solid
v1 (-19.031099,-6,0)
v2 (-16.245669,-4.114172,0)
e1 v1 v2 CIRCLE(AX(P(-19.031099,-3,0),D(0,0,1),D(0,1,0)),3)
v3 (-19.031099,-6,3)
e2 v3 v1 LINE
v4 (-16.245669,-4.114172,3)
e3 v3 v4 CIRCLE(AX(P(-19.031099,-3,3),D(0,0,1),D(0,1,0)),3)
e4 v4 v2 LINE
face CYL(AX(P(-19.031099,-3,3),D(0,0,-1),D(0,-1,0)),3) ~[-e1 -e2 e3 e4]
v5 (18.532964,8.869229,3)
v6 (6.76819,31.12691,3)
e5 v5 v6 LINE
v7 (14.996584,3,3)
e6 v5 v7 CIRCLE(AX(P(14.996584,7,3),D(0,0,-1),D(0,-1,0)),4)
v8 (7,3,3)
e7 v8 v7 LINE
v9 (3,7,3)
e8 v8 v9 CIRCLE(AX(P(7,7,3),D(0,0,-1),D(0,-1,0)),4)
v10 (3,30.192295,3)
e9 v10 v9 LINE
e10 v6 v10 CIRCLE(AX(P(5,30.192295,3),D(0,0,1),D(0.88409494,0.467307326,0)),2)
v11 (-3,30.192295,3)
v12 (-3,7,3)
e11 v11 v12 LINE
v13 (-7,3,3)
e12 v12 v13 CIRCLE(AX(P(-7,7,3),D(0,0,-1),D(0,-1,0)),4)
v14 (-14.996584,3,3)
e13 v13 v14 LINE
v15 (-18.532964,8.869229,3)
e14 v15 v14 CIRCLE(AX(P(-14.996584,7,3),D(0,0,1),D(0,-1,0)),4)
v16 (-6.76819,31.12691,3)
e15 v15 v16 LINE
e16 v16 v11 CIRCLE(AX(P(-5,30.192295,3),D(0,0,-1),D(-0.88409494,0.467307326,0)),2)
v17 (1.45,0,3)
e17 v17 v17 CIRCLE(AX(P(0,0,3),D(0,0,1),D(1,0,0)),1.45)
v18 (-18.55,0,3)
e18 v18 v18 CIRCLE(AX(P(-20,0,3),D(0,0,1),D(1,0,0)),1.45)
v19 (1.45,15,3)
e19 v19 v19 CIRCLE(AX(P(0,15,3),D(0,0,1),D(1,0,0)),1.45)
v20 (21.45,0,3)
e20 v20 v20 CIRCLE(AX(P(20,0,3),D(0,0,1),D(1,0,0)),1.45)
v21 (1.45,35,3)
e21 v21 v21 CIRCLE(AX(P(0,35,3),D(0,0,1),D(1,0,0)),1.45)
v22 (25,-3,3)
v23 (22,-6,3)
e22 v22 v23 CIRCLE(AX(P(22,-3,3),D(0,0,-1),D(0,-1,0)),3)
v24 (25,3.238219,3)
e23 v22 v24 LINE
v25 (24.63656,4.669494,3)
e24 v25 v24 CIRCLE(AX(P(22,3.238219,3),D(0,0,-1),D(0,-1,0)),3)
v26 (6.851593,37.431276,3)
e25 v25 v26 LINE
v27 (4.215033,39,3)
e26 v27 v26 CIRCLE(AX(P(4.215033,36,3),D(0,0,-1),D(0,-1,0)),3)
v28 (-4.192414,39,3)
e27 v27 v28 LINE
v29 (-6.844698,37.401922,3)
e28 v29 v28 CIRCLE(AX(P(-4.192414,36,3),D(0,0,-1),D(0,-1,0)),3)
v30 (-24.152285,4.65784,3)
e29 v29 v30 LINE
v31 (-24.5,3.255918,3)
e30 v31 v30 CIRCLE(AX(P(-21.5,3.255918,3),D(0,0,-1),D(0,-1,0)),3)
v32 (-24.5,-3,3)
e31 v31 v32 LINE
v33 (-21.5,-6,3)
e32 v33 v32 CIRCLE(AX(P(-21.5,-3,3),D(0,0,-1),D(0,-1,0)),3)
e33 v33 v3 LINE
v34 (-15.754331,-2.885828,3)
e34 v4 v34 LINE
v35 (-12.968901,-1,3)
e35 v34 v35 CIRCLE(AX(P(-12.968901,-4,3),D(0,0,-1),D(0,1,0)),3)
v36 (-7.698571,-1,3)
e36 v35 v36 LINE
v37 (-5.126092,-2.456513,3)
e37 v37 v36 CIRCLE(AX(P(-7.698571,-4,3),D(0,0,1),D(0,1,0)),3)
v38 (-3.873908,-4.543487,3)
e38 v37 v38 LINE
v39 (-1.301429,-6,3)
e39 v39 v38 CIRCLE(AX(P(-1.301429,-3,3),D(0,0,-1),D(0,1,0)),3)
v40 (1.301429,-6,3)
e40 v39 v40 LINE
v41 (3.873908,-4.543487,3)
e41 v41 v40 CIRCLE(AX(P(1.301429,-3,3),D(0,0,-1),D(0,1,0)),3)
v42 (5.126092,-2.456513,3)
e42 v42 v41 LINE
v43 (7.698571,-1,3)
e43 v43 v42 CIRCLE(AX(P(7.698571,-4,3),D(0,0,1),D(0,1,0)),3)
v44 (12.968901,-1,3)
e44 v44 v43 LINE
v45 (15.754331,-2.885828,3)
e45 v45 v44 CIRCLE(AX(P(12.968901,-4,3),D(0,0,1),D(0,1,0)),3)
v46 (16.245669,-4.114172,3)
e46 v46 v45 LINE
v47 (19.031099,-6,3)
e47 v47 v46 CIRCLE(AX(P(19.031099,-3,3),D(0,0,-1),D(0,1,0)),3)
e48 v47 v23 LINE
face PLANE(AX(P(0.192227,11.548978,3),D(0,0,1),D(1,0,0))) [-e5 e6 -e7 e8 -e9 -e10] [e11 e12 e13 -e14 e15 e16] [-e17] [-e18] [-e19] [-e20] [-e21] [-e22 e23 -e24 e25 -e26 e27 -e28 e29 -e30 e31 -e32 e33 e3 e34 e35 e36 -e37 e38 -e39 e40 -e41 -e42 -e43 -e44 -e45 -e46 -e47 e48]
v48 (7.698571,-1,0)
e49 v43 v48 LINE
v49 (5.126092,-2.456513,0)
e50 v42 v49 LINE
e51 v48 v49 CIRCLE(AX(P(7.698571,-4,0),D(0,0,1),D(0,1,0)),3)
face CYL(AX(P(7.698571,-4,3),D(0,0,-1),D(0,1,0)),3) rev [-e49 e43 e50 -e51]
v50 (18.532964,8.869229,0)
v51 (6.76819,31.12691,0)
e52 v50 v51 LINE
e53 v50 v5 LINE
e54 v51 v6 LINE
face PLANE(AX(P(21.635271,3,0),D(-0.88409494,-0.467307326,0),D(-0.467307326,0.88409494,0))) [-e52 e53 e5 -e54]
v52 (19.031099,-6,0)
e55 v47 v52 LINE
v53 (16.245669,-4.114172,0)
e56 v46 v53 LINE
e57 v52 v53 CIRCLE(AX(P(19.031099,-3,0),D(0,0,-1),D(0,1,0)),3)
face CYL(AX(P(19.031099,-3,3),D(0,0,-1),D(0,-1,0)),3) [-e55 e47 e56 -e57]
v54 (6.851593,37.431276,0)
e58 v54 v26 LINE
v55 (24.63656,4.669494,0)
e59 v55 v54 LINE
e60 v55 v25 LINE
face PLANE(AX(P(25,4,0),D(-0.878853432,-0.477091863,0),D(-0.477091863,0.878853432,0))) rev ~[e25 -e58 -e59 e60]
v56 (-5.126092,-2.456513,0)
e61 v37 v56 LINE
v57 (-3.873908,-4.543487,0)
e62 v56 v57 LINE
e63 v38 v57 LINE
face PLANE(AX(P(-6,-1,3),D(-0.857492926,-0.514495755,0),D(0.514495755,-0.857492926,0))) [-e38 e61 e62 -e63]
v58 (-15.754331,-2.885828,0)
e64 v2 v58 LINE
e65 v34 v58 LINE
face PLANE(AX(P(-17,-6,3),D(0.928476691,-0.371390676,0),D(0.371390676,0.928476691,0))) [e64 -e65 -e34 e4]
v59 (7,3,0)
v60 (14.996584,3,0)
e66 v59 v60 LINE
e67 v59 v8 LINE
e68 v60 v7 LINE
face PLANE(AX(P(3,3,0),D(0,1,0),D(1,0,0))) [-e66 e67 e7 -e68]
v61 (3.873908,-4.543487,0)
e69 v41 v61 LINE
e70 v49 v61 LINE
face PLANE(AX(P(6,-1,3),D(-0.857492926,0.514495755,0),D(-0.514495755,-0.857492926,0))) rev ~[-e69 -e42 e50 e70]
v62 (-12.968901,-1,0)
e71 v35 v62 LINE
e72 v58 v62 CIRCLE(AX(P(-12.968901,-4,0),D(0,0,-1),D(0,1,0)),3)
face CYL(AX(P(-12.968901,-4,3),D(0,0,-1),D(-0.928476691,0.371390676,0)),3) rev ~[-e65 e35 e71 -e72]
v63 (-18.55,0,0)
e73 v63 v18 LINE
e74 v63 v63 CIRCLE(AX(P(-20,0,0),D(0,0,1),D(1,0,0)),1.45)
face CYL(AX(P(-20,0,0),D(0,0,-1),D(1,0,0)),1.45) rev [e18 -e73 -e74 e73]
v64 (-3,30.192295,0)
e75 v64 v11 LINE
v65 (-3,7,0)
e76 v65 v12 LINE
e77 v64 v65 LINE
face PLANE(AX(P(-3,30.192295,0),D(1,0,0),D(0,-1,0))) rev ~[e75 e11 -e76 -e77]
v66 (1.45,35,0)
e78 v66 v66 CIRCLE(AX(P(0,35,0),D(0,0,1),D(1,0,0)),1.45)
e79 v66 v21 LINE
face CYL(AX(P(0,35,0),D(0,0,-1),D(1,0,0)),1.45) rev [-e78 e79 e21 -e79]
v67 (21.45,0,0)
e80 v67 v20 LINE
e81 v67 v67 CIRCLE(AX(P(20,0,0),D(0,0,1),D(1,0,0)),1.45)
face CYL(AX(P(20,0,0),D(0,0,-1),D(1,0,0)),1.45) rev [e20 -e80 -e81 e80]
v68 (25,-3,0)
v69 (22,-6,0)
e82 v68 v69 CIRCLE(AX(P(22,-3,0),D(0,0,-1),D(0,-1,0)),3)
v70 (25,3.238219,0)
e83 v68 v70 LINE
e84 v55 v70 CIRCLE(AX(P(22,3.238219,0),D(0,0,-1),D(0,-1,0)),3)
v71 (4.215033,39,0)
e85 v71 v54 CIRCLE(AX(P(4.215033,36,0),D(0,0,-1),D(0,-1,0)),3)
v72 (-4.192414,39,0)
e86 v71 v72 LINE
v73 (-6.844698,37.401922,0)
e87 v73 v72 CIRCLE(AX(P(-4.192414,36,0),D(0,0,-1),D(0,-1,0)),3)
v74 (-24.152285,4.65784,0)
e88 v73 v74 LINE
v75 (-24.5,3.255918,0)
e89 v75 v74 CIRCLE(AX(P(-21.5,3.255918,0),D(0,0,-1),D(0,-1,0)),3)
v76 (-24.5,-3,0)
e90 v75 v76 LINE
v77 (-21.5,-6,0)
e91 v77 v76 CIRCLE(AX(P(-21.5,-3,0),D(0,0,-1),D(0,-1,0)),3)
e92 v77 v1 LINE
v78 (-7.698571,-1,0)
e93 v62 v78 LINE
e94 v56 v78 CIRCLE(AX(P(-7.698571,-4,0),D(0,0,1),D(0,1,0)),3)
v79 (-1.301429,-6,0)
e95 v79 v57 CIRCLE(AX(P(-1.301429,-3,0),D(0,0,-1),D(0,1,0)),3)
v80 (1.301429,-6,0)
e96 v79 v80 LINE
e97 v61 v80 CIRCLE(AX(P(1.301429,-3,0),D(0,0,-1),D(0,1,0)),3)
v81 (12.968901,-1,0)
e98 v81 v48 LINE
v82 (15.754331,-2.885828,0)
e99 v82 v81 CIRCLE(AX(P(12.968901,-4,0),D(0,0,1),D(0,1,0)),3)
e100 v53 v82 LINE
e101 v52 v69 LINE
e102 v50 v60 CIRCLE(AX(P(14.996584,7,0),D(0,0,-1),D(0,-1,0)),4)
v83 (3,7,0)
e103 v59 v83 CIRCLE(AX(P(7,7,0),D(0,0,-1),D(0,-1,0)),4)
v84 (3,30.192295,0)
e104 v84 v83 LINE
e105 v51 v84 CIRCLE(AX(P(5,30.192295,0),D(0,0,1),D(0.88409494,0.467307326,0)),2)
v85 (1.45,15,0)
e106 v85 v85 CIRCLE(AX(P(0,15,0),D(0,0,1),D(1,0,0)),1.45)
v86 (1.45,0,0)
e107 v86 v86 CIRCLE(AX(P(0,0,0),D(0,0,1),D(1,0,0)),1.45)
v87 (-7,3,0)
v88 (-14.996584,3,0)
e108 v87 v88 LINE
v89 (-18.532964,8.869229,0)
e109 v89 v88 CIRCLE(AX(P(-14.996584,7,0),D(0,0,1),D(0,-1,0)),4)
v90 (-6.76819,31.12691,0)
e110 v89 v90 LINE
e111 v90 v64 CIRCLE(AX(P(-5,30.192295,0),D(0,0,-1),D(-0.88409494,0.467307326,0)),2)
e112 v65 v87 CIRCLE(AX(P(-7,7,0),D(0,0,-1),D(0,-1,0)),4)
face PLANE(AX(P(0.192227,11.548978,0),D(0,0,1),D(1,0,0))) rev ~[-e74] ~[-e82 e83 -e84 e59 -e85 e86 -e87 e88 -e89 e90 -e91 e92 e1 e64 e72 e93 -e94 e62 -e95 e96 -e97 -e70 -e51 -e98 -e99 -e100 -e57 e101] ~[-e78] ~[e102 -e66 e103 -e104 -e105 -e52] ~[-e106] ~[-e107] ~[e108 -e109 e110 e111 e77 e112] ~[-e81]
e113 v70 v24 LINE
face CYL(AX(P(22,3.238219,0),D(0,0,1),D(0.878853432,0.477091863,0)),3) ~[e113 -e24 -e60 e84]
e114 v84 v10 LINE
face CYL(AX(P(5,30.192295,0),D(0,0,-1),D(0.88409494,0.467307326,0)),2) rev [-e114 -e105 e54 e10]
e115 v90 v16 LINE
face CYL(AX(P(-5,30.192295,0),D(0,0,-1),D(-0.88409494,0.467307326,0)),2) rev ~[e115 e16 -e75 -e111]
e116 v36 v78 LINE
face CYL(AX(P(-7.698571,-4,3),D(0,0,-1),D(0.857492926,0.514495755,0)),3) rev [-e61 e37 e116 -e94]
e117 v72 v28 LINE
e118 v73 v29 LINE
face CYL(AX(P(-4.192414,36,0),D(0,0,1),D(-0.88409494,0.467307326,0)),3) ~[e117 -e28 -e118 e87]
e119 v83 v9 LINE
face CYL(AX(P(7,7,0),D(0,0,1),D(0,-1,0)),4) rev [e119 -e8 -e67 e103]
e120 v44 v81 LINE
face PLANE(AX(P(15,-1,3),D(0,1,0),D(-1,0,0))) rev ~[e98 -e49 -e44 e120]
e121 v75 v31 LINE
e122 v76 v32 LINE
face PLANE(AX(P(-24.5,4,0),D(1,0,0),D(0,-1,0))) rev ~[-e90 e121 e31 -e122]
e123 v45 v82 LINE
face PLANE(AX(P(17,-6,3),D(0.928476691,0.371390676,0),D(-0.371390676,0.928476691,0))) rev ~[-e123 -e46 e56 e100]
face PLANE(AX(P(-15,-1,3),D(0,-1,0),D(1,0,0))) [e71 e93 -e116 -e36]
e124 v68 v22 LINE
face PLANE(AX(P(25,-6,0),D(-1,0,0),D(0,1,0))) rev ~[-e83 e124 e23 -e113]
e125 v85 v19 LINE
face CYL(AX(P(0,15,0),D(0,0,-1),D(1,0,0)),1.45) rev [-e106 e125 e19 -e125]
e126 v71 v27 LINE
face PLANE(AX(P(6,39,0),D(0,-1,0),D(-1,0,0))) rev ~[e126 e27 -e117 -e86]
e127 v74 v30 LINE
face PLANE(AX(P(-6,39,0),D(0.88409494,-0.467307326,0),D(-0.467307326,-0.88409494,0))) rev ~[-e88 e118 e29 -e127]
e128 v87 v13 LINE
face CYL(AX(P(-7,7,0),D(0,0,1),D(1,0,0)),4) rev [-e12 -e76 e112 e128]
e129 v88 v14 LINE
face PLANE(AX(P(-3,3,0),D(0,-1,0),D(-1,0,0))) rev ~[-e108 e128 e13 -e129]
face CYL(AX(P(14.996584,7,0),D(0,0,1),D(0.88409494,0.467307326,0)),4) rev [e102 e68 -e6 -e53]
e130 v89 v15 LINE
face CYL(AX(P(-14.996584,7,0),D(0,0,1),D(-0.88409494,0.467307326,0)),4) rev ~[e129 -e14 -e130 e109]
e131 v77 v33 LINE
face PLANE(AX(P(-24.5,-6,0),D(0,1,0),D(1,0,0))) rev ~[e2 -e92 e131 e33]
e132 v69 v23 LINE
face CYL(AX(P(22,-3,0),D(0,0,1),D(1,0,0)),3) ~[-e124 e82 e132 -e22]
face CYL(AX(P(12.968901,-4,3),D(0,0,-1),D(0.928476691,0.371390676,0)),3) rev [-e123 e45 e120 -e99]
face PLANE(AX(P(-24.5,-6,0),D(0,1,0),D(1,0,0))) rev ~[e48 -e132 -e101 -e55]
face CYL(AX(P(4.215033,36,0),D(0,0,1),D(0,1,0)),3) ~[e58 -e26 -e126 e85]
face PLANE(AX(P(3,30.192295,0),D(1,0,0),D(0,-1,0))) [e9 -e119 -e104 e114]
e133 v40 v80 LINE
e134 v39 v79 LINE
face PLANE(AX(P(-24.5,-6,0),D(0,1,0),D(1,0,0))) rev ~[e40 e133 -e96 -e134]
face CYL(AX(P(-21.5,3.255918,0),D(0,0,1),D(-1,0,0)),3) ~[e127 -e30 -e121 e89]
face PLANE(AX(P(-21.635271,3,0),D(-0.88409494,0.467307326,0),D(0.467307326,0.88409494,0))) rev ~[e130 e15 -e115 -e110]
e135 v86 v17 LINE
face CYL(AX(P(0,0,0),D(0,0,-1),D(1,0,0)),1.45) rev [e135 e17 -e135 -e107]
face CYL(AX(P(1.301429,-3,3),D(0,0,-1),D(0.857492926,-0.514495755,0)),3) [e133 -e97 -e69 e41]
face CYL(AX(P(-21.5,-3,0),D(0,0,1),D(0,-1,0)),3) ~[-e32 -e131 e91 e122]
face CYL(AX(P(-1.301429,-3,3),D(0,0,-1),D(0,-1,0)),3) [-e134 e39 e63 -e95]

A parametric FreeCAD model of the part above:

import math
import FreeCAD as App
import Part
import Sketcher
from FreeCAD import Vector
Q = App.Units.Quantity


def edges_at(feature, points):
    """Names of the edges that pass closest to the given points."""
    edges = feature.Shape.Edges
    near = lambda p: min(range(len(edges)), key=lambda i: edges[i].distToShape(Part.Vertex(*p))[0])
    return sorted({f"Edge{near(p) + 1}" for p in points})


def add_polygon(sketch, points):
    """Adds a closed chain of lines whose ends are joined by coincident constraints."""
    first, n = sketch.GeometryCount, len(points)
    for a, b in zip(points, points[1:] + points[:1]):
        sketch.addGeometry(Part.LineSegment(App.Vector(*a, 0), App.Vector(*b, 0)), False)
    for i in range(n):
        sketch.addConstraint(Sketcher.Constraint("Coincident", first + i, 2, first + (i + 1) % n, 1))

doc = App.newDocument("Part")
body = doc.addObject("PartDesign::Body", "Body")

sketch1 = body.newObject("Sketcher::SketchObject", "Sketch")
sketch1.AttachmentSupport = (doc.getObject("XY_Plane"), [""])
sketch1.MapMode = "FlatFace"
add_polygon(sketch1, [(-24.5, -6), (25, -6), (25, 4), (6, 39), (-6, 39), (-24.5, 4)])
sketch1.addGeometry(Part.Circle(Vector(-20, 0, 0), Vector(0, 0, 1), 1.4), False)
sketch1.addGeometry(Part.Circle(Vector(0, 0, 0), Vector(0, 0, 1), 1.4), False)
sketch1.addGeometry(Part.Circle(Vector(20, 0, 0), Vector(0, 0, 1), 1.4), False)
sketch1.addGeometry(Part.Circle(Vector(0, 15, 0), Vector(0, 0, 1), 1.4), False)
sketch1.addGeometry(Part.ArcOfCircle(Part.Circle(Vector(-5, 30.2, 0), Vector(0, 0, 1), 2), math.radians(0), math.radians(152)), False)
sketch1.addGeometry(Part.LineSegment(Vector(-3, 30.2, 0), Vector(-3, 3, 0)), False)
sketch1.addGeometry(Part.LineSegment(Vector(-3, 3, 0), Vector(-21.6, 3, 0)), False)
sketch1.addGeometry(Part.LineSegment(Vector(-21.6, 3, 0), Vector(-6.8, 31.1, 0)), False)
sketch1.addGeometry(Part.LineSegment(Vector(6.8, 31.1, 0), Vector(21.6, 3, 0)), False)
sketch1.addGeometry(Part.LineSegment(Vector(21.6, 3, 0), Vector(3, 3, 0)), False)
sketch1.addGeometry(Part.LineSegment(Vector(3, 3, 0), Vector(3, 30.2, 0)), False)
sketch1.addGeometry(Part.ArcOfCircle(Part.Circle(Vector(5, 30.2, 0), Vector(0, 0, 1), 2), math.radians(28), math.radians(180)), False)
sketch1.addGeometry(Part.Circle(Vector(0, 35, 0), Vector(0, 0, 1), 1.4), False)
sketch1.addConstraint(Sketcher.Constraint("Tangent", 10, 1, 11, 1))
sketch1.addConstraint(Sketcher.Constraint("Coincident", 11, 2, 12, 1))
sketch1.addConstraint(Sketcher.Constraint("Coincident", 12, 2, 13, 1))
sketch1.addConstraint(Sketcher.Constraint("Tangent", 13, 2, 10, 2))
sketch1.addConstraint(Sketcher.Constraint("Coincident", 14, 2, 15, 1))
sketch1.addConstraint(Sketcher.Constraint("Coincident", 15, 2, 16, 1))
sketch1.addConstraint(Sketcher.Constraint("Tangent", 16, 2, 17, 2))
sketch1.addConstraint(Sketcher.Constraint("Tangent", 17, 1, 14, 1))
sketch1.addConstraint(Sketcher.Constraint("Horizontal", 0))
sketch1.addConstraint(Sketcher.Constraint("Vertical", 1))
sketch1.addConstraint(Sketcher.Constraint("Horizontal", 3))
sketch1.addConstraint(Sketcher.Constraint("Vertical", 5))
sketch1.addConstraint(Sketcher.Constraint("Vertical", 11))
sketch1.addConstraint(Sketcher.Constraint("Horizontal", 12))
sketch1.addConstraint(Sketcher.Constraint("Horizontal", 15))
sketch1.addConstraint(Sketcher.Constraint("Vertical", 16))
sketch1.addConstraint(Sketcher.Constraint("Coincident", 7, 3, -1, 1))
sketch1.addConstraint(Sketcher.Constraint("Equal", 6, 7))
sketch1.addConstraint(Sketcher.Constraint("Equal", 7, 8))
sketch1.addConstraint(Sketcher.Constraint("Equal", 8, 9))
sketch1.addConstraint(Sketcher.Constraint("Equal", 10, 17))
sketch1.addConstraint(Sketcher.Constraint("Equal", 9, 18))
sketch1.addConstraint(Sketcher.Constraint("Symmetric", 6, 3, 8, 3, -1, 1))
sketch1.addConstraint(Sketcher.Constraint("Symmetric", 10, 3, 17, 3, -2))
sketch1.addConstraint(Sketcher.Constraint("Symmetric", 12, 2, 14, 2, -2))
sketch1.addConstraint(Sketcher.Constraint("PointOnObject", 6, 3, -1))
sketch1.addConstraint(Sketcher.Constraint("PointOnObject", 9, 3, -2))
sketch1.addConstraint(Sketcher.Constraint("PointOnObject", 18, 3, -2))
sketch1.addConstraint(Sketcher.Constraint("Parallel", 4, 13))
sketch1.addConstraint(Sketcher.Constraint("Horizontal", 1, 2, 4, 2))
sketch1.addConstraint(Sketcher.Constraint("Radius", 10, Q("2 mm")))
sketch1.addConstraint(Sketcher.Constraint("Diameter", 6, Q("2.9 mm")))
sketch1.addConstraint(Sketcher.Constraint("DistanceX", 3, 2, 3, 1, Q("12 mm")))
sketch1.addConstraint(Sketcher.Constraint("DistanceY", 1, 1, 1, 2, Q("10 mm")))
sketch1.addConstraint(Sketcher.Constraint("DistanceX", 0, 1, 0, 2, Q("49.5 mm")))
sketch1.addConstraint(Sketcher.Constraint("DistanceX", 6, 3, -1, 1, Q("20 mm")))
sketch1.addConstraint(Sketcher.Constraint("DistanceY", -1, 1, 9, 3, Q("15 mm")))
sketch1.addConstraint(Sketcher.Constraint("DistanceX", 10, 3, -1, 1, Q("5 mm")))
sketch1.addConstraint(Sketcher.Constraint("DistanceY", -1, 1, 18, 3, Q("35 mm")))
sketch1.addConstraint(Sketcher.Constraint("DistanceX", -1, 1, 0, 2, Q("25 mm")))
sketch1.addConstraint(Sketcher.Constraint("DistanceY", 0, 2, -1, 1, Q("6 mm")))
sketch1.addConstraint(Sketcher.Constraint("DistanceX", -1, 1, 2, 2, Q("6 mm")))
sketch1.addConstraint(Sketcher.Constraint("DistanceY", -1, 1, 2, 2, Q("39 mm")))
sketch1.addConstraint(Sketcher.Constraint("DistanceY", -1, 1, 11, 2, Q("3 mm")))
sketch1.addConstraint(Sketcher.Constraint("DistanceX", 12, 2, 12, 1, Q("18.635271 mm")))
pad1 = body.newObject("PartDesign::Pad", "Pad")
pad1.Profile = sketch1
pad1.Length = 3

sketch2 = body.newObject("Sketcher::SketchObject", "Sketch001")
sketch2.AttachmentSupport = (doc.getObject("XY_Plane"), [""])
sketch2.MapMode = "FlatFace"
sketch2.AttachmentOffset = App.Placement(Vector(0, 0, 3), App.Rotation())
add_polygon(sketch2, [(-15, -1), (-17, -6), (-3, -6), (-6, -1)])
add_polygon(sketch2, [(3, -6), (17, -6), (15, -1), (6, -1)])
sketch2.addConstraint(Sketcher.Constraint("Horizontal", 1))
sketch2.addConstraint(Sketcher.Constraint("Horizontal", 3))
sketch2.addConstraint(Sketcher.Constraint("Horizontal", 4))
sketch2.addConstraint(Sketcher.Constraint("Horizontal", 6))
sketch2.addConstraint(Sketcher.Constraint("Symmetric", 0, 2, 4, 2, -2))
sketch2.addConstraint(Sketcher.Constraint("Symmetric", 3, 2, 5, 2, -2))
sketch2.addConstraint(Sketcher.Constraint("Equal", 1, 4))
sketch2.addConstraint(Sketcher.Constraint("Equal", 3, 6))
sketch2.addConstraint(Sketcher.Constraint("DistanceX", 1, 1, 1, 2, Q("14 mm")))
sketch2.addConstraint(Sketcher.Constraint("DistanceX", 3, 2, 3, 1, Q("9 mm")))
sketch2.addConstraint(Sketcher.Constraint("DistanceX", 0, 2, -1, 1, Q("17 mm")))
sketch2.addConstraint(Sketcher.Constraint("DistanceY", 0, 2, -1, 1, Q("6 mm")))
sketch2.addConstraint(Sketcher.Constraint("DistanceX", 2, 2, -1, 1, Q("6 mm")))
sketch2.addConstraint(Sketcher.Constraint("DistanceY", 2, 2, -1, 1, Q("1 mm")))
pocket1 = body.newObject("PartDesign::Pocket", "Pocket")
pocket1.Profile = sketch2
pocket1.Length = 3
doc.recompute()

fillet = body.newObject("PartDesign::Fillet", "Fillet")
fillet.Base = (pocket1, edges_at(pocket1, [
    (-24.5, 4, 1.5),
    (-6, 39, 1.5),
    (6, 39, 1.5),
    (25, 4, 1.5),
    (25, -6, 1.5),
    (-24.5, -6, 1.5),
    (-3, -6, 1.5),
    (-17, -6, 1.5),
    (-15, -1, 1.5),
    (-6, -1, 1.5),
    (3, -6, 1.5),
    (6, -1, 1.5),
    (15, -1, 1.5),
    (17, -6, 1.5),
]))
fillet.Radius = 3
doc.recompute()

fillet2 = body.newObject("PartDesign::Fillet", "Fillet001")
fillet2.Base = (fillet, edges_at(fillet, [
    (-21.635, 3, 1.5),
    (-3, 3, 1.5),
    (3, 3, 1.5),
    (21.635, 3, 1.5),
]))
fillet2.Radius = 4

doc.recompute()
